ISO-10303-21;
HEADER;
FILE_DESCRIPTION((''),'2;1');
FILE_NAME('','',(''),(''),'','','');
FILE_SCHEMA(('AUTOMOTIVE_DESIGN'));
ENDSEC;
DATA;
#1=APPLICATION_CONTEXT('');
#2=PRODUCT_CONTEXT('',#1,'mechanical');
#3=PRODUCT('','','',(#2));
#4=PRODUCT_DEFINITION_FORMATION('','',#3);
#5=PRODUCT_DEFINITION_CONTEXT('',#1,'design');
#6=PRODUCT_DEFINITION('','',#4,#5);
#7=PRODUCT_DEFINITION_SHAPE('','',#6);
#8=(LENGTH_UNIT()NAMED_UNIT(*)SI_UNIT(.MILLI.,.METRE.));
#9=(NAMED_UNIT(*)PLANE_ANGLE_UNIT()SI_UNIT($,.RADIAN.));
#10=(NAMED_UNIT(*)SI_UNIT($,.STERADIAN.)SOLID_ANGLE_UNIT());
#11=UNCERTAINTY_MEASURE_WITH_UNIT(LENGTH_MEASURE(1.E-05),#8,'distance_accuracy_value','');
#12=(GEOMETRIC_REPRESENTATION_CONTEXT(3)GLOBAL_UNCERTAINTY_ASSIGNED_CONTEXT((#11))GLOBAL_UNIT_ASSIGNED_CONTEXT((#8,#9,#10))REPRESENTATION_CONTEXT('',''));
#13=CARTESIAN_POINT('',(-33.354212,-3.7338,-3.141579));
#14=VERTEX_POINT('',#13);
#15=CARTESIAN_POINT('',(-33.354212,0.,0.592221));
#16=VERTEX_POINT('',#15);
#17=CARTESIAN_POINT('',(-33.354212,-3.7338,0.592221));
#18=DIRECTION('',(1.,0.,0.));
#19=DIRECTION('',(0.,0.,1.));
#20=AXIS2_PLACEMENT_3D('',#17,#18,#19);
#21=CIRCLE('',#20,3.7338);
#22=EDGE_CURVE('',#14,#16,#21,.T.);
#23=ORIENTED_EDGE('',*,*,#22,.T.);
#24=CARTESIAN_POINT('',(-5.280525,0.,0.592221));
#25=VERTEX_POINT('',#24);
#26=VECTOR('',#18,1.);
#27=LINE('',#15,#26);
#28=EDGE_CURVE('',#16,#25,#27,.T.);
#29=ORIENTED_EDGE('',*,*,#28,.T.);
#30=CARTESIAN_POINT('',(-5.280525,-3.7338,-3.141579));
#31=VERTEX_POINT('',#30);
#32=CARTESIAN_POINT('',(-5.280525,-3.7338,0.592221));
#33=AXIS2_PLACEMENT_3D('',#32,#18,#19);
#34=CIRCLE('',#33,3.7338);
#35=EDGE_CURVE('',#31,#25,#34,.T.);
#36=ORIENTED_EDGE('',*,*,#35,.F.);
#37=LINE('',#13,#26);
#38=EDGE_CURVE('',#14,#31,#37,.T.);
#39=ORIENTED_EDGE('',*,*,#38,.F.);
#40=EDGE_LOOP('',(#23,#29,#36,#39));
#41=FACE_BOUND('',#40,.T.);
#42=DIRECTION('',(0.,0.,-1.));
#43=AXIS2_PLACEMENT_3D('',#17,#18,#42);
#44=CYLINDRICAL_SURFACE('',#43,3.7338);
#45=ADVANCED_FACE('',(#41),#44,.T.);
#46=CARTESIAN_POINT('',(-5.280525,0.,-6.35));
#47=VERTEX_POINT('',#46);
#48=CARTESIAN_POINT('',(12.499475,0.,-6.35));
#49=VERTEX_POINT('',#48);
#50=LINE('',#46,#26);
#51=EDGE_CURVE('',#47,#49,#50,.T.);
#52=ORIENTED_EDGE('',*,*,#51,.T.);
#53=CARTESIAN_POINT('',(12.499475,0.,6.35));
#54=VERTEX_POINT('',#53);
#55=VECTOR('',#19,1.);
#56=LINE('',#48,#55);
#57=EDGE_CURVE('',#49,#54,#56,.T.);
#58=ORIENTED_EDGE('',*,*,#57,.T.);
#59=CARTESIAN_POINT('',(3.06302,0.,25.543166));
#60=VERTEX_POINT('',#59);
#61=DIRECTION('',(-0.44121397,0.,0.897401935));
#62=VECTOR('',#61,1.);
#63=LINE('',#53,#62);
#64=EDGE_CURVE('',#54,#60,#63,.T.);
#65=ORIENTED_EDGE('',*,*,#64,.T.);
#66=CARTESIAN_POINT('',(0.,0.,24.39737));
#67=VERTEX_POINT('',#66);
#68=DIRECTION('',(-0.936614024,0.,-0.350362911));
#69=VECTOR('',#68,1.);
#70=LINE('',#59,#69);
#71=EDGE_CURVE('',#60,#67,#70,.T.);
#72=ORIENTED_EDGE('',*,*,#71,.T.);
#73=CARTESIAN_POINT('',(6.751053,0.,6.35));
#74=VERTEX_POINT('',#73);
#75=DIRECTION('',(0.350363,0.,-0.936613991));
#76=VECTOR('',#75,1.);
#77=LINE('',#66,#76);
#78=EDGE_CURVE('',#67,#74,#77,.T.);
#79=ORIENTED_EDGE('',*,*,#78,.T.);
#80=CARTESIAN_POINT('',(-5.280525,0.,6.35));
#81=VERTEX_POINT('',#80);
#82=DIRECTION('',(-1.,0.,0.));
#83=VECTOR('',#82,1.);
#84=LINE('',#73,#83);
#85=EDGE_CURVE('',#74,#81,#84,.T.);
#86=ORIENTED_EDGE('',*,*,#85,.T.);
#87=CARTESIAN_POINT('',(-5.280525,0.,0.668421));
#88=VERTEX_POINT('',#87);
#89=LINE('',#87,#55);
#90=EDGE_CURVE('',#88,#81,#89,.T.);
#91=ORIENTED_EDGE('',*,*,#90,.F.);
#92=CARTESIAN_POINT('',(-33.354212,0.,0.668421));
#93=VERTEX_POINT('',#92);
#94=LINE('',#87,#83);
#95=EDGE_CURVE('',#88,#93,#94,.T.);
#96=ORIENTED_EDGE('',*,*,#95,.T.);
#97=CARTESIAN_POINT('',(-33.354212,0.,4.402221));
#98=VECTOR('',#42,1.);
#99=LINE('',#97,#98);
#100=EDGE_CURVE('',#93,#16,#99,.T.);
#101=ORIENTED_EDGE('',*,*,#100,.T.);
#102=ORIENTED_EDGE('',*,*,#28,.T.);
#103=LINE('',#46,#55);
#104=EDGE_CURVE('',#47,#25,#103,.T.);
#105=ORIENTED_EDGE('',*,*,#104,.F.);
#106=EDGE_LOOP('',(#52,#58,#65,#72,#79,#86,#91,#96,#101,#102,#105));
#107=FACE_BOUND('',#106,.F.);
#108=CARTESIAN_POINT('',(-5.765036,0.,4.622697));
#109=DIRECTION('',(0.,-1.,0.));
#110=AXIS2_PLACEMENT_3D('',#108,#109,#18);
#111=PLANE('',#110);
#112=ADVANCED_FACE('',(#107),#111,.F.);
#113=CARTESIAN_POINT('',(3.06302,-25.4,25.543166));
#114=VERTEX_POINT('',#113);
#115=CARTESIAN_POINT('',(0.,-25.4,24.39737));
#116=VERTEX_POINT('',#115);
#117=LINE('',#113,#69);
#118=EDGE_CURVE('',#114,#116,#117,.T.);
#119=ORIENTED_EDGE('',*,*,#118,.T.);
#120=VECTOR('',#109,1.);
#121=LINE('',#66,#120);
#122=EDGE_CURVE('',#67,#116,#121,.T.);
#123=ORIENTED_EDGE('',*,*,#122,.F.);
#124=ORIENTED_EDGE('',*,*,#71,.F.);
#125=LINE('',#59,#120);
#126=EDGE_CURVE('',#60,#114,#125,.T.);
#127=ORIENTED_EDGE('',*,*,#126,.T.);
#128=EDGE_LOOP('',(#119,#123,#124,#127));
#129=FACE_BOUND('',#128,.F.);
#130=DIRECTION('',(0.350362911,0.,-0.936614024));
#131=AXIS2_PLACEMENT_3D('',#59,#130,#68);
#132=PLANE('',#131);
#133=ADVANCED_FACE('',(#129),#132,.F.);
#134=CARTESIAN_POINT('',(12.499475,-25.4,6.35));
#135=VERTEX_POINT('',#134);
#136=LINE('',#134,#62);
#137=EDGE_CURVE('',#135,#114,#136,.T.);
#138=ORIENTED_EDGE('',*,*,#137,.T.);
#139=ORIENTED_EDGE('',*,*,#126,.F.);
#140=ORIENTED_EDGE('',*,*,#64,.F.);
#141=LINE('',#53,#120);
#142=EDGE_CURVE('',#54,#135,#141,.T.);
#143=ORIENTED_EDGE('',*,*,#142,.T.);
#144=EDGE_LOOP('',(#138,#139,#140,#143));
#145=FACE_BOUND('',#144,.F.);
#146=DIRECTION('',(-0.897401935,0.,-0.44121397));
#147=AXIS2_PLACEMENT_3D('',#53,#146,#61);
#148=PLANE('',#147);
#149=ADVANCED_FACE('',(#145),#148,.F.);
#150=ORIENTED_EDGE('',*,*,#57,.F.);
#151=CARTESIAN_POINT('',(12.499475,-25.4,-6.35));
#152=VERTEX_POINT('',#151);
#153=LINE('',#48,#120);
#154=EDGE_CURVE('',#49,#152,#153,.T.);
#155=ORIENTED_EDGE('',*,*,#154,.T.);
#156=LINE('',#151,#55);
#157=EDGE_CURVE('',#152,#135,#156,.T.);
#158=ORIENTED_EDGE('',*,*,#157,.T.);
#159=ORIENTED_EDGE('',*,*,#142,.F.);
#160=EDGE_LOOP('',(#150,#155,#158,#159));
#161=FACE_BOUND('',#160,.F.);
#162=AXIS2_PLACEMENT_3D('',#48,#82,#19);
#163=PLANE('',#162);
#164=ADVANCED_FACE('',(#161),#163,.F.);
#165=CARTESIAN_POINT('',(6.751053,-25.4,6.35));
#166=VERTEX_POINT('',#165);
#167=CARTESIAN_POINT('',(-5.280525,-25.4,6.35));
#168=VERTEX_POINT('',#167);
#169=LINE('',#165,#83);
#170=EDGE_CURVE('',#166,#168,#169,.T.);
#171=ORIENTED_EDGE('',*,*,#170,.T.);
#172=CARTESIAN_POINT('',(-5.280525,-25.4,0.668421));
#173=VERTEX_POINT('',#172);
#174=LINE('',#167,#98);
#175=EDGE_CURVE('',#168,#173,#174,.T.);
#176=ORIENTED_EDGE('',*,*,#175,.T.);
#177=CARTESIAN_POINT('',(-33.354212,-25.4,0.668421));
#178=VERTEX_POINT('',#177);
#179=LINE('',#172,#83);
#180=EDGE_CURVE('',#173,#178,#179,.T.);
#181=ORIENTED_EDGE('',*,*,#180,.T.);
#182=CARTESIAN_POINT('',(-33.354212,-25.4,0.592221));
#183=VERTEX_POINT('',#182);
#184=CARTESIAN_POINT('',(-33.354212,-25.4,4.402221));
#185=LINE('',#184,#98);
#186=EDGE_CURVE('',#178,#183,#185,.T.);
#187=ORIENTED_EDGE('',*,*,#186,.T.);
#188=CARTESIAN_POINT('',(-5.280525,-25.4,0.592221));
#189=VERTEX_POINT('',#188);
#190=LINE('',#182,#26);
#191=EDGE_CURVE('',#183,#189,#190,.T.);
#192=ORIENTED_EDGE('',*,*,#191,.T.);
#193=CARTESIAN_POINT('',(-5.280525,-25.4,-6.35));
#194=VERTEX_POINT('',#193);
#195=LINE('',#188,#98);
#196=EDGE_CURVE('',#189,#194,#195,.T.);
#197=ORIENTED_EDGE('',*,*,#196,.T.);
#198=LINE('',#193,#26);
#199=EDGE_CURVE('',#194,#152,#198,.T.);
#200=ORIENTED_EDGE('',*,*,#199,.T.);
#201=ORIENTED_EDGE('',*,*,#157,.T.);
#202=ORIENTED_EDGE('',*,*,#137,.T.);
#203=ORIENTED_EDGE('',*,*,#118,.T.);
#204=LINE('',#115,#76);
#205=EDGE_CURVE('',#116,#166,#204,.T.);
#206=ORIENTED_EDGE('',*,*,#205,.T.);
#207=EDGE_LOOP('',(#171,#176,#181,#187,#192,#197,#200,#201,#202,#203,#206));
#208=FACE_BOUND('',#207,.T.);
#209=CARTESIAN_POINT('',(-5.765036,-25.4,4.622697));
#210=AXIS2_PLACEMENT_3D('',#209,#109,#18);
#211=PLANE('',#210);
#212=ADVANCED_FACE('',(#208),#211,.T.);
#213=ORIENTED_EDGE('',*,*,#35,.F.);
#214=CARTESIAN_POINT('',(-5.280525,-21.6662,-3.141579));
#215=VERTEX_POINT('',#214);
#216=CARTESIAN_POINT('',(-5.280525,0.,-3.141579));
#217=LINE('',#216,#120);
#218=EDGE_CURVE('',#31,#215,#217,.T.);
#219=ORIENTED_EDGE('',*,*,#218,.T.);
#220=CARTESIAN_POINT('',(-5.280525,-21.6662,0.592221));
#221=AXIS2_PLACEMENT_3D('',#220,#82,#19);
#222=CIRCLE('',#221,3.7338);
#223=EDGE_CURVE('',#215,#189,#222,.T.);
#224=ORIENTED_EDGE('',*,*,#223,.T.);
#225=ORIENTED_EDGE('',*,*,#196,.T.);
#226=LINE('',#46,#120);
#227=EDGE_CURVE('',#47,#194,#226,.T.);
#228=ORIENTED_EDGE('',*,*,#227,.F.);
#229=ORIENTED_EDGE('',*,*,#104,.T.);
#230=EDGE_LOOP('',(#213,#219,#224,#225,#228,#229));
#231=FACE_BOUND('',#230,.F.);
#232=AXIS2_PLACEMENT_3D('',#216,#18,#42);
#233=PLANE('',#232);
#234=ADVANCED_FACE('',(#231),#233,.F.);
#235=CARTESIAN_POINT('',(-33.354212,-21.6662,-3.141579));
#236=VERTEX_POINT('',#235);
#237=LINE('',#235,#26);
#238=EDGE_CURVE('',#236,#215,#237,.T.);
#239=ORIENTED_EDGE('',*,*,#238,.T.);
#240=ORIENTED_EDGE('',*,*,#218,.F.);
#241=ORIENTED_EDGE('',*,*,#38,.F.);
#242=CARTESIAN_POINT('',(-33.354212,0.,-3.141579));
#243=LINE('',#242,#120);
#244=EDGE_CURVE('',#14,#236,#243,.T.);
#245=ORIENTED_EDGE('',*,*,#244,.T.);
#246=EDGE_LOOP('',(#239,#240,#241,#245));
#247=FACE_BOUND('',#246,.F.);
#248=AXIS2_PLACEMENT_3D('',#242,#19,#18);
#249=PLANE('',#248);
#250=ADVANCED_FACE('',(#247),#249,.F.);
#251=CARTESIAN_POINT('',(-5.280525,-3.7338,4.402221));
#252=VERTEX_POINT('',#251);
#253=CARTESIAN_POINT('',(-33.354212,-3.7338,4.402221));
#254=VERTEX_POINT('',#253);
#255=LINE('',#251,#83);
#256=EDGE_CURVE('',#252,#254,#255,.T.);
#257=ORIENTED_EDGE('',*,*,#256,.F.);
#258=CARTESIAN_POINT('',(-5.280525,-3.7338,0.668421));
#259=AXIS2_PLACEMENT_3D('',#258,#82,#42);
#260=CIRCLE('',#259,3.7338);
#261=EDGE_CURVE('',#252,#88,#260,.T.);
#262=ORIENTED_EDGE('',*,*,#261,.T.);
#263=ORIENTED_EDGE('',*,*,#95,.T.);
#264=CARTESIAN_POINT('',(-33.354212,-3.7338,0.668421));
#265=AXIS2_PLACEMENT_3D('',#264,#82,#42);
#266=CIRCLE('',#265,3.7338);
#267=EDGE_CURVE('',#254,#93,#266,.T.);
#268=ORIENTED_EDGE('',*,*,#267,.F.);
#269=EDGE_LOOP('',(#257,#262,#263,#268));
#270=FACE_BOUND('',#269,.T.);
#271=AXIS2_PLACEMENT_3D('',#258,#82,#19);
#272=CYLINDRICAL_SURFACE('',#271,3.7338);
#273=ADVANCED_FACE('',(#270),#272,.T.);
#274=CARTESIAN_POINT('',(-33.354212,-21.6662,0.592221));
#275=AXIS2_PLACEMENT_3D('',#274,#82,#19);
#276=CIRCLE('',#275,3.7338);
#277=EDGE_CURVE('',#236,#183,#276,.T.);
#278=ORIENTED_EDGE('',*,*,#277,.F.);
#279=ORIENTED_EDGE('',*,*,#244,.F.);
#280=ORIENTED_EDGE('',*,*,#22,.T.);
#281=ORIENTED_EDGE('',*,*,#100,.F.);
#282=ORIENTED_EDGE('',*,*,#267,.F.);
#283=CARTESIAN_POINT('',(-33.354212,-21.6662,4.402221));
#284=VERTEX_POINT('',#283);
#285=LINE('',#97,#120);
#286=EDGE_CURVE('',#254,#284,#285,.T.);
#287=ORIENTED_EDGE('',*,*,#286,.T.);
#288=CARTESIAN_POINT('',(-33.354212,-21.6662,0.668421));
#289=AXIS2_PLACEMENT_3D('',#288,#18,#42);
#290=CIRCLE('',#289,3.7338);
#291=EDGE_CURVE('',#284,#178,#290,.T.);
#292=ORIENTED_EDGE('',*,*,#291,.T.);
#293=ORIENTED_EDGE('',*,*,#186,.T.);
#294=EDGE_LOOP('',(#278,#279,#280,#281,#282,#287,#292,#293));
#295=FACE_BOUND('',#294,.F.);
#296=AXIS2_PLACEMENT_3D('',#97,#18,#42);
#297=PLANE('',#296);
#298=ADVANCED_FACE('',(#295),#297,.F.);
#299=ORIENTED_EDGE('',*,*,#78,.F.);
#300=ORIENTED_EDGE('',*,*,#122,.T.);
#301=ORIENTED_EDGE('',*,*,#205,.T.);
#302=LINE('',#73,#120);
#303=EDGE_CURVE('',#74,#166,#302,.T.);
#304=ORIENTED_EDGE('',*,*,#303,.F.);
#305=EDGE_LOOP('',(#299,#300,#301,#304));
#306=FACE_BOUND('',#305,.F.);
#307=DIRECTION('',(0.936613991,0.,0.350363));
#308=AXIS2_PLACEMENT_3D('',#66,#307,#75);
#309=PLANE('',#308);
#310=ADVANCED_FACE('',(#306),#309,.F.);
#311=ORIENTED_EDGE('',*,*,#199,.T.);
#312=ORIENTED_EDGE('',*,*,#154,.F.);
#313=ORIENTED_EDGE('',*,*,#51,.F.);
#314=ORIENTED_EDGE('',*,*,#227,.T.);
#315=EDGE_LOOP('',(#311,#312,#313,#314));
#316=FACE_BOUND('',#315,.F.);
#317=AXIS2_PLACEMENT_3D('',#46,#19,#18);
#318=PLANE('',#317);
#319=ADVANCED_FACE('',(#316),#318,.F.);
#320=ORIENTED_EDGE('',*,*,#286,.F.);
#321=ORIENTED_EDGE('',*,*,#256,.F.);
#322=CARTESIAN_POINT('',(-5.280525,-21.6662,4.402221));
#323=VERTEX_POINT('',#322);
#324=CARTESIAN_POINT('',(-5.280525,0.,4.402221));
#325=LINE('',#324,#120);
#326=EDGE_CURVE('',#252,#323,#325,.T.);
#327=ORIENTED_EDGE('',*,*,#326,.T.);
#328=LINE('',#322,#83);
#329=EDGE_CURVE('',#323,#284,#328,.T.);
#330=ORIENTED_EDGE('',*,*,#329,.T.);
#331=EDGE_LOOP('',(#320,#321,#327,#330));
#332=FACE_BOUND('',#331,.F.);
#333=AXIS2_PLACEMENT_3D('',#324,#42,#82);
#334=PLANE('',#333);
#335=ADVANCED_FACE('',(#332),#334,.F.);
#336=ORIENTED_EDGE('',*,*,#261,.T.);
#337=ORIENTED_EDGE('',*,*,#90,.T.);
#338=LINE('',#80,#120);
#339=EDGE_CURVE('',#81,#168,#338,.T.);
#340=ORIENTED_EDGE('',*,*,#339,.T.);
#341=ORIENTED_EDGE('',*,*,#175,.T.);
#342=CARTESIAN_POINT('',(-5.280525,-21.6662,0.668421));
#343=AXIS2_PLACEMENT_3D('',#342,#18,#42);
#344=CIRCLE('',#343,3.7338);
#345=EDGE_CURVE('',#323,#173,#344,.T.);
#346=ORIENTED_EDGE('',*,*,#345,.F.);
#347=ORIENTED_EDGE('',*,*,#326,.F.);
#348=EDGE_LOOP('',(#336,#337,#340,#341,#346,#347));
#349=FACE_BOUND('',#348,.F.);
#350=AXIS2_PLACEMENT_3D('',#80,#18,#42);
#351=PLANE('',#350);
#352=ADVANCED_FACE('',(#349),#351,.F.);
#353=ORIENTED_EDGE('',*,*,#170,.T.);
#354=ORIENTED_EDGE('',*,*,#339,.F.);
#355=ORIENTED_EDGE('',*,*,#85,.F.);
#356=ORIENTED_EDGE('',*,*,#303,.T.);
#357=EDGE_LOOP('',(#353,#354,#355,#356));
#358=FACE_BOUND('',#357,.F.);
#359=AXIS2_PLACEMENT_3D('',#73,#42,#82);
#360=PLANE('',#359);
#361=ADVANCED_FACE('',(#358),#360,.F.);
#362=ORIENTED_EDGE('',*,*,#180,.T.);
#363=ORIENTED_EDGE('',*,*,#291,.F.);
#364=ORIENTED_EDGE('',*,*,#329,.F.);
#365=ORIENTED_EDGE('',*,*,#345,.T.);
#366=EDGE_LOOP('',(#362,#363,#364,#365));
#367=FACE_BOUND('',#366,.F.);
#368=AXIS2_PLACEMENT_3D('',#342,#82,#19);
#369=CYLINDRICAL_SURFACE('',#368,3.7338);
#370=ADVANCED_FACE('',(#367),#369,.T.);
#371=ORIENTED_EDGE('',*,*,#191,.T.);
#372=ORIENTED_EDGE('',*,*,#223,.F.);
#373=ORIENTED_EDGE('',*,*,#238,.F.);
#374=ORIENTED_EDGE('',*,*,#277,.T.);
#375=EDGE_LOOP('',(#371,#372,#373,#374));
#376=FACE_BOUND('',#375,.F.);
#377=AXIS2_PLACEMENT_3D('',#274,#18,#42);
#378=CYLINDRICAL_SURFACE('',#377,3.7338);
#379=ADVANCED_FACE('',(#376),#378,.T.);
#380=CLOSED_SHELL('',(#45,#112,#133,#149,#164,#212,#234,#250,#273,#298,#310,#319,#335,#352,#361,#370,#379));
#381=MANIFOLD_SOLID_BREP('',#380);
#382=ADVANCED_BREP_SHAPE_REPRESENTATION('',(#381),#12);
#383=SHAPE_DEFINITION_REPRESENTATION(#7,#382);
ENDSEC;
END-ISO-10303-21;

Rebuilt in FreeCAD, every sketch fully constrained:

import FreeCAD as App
import Part
import Sketcher

V = App.Vector
Q = App.Units.Quantity


def edges_at(feature, points):
    """Names of the edges that pass closest to the given points."""
    edges = feature.Shape.Edges
    near = lambda p: min(range(len(edges)), key=lambda i: edges[i].distToShape(Part.Vertex(*p))[0])
    return sorted({f"Edge{near(p) + 1}" for p in points})


def add_polygon(sketch, points):
    """Adds a closed chain of lines whose ends are joined by coincident constraints."""
    first, n = sketch.GeometryCount, len(points)
    for a, b in zip(points, points[1:] + points[:1]):
        sketch.addGeometry(Part.LineSegment(App.Vector(*a, 0), App.Vector(*b, 0)), False)
    for i in range(n):
        sketch.addConstraint(Sketcher.Constraint("Coincident", first + i, 2, first + (i + 1) % n, 1))

doc = App.newDocument("Part")
params = doc.addObject("Spreadsheet::Sheet", "Params")
for row, (alias, value) in enumerate([
    ("sketch1_width", "0.7 in"),
    ("sketch1_height", "0.5 in"),
    ("sketch1_height2", "0.297 in"),
    ("pad1_length", "1 in"),
    ("fillet_radius", "0.147 in"),
], start=1):
    params.set(f"A{row}", alias)
    params.set(f"B{row}", "=" + value)
    params.setAlias(f"B{row}", alias)

body = doc.addObject("PartDesign::Body", "Body")

sketch1 = doc.addObject("Sketcher::SketchObject", "Sketch")
body.addObject(sketch1)
sketch1.AttachmentSupport = (doc.XZ_Plane, [""])
sketch1.MapMode = "FlatFace"
add_polygon(sketch1, [(-33.354212, 4.402221), (-33.354212, -3.141579), (-5.280525, -3.141579), (-5.280525, -6.35), (12.499475, -6.35), (12.499475, 6.35), (3.06302, 25.543166), (0, 24.39737), (6.751053, 6.35), (-5.280525, 6.35), (-5.280525, 4.402221)])
sketch1.addConstraint(Sketcher.Constraint("Vertical", 0))
sketch1.addConstraint(Sketcher.Constraint("Horizontal", 1))
sketch1.addConstraint(Sketcher.Constraint("Vertical", 2))
sketch1.addConstraint(Sketcher.Constraint("Horizontal", 3))
sketch1.addConstraint(Sketcher.Constraint("Vertical", 4))
sketch1.addConstraint(Sketcher.Constraint("Horizontal", 8))
sketch1.addConstraint(Sketcher.Constraint("Vertical", 9))
sketch1.addConstraint(Sketcher.Constraint("Horizontal", 10))
sketch1.addConstraint(Sketcher.Constraint("Symmetric", 2, 2, 8, 2, -1))
sketch1.addConstraint(Sketcher.Constraint("PointOnObject", 6, 2, -2))
sketch1.addConstraint(Sketcher.Constraint("Perpendicular", 6, 7))
sketch1.addConstraint(Sketcher.Constraint("Horizontal", 4, 2, 7, 2))
sketch1.addConstraint(Sketcher.Constraint("DistanceX", 3, 1, 3, 2, Q("0.7 in")))
sketch1.addConstraint(Sketcher.Constraint("DistanceY", 4, 1, 4, 2, Q("0.5 in")))
sketch1.addConstraint(Sketcher.Constraint("DistanceY", 0, 2, 0, 1, Q("0.297 in")))
sketch1.addConstraint(Sketcher.Constraint("DistanceY", 2, 2, 2, 1, Q("3.208421 mm")))
sketch1.addConstraint(Sketcher.Constraint("Distance", 5, Q("21.38748 mm")))
sketch1.addConstraint(Sketcher.Constraint("Distance", 6, Q("3.270312 mm")))
sketch1.addConstraint(Sketcher.Constraint("Distance", 7, Q("19.268738 mm")))
sketch1.addConstraint(Sketcher.Constraint("DistanceX", 1, 1, 1, 2, Q("28.073687 mm")))
sketch1.addConstraint(Sketcher.Constraint("DistanceX", 8, 2, 8, 1, Q("12.031578 mm")))
sketch1.setExpression("Constraints[23]", "Params.sketch1_width")
sketch1.setExpression("Constraints[24]", "Params.sketch1_height")
sketch1.setExpression("Constraints[25]", "Params.sketch1_height2")
pad1 = doc.addObject("PartDesign::Pad", "Pad")
body.addObject(pad1)
pad1.Profile = sketch1
pad1.setExpression("Length", "Params.pad1_length")
doc.recompute()

fillet = doc.addObject("PartDesign::Fillet", "Fillet")
body.addObject(fillet)
fillet.Base = (pad1, edges_at(pad1, [
    (-19.317, -25.4, 4.402),
    (-19.317, -25.4, -3.142),
    (-19.317, 0, 4.402),
    (-19.317, 0, -3.142),
]))
fillet.setExpression("Radius", "Params.fillet_radius")

doc.recompute()
